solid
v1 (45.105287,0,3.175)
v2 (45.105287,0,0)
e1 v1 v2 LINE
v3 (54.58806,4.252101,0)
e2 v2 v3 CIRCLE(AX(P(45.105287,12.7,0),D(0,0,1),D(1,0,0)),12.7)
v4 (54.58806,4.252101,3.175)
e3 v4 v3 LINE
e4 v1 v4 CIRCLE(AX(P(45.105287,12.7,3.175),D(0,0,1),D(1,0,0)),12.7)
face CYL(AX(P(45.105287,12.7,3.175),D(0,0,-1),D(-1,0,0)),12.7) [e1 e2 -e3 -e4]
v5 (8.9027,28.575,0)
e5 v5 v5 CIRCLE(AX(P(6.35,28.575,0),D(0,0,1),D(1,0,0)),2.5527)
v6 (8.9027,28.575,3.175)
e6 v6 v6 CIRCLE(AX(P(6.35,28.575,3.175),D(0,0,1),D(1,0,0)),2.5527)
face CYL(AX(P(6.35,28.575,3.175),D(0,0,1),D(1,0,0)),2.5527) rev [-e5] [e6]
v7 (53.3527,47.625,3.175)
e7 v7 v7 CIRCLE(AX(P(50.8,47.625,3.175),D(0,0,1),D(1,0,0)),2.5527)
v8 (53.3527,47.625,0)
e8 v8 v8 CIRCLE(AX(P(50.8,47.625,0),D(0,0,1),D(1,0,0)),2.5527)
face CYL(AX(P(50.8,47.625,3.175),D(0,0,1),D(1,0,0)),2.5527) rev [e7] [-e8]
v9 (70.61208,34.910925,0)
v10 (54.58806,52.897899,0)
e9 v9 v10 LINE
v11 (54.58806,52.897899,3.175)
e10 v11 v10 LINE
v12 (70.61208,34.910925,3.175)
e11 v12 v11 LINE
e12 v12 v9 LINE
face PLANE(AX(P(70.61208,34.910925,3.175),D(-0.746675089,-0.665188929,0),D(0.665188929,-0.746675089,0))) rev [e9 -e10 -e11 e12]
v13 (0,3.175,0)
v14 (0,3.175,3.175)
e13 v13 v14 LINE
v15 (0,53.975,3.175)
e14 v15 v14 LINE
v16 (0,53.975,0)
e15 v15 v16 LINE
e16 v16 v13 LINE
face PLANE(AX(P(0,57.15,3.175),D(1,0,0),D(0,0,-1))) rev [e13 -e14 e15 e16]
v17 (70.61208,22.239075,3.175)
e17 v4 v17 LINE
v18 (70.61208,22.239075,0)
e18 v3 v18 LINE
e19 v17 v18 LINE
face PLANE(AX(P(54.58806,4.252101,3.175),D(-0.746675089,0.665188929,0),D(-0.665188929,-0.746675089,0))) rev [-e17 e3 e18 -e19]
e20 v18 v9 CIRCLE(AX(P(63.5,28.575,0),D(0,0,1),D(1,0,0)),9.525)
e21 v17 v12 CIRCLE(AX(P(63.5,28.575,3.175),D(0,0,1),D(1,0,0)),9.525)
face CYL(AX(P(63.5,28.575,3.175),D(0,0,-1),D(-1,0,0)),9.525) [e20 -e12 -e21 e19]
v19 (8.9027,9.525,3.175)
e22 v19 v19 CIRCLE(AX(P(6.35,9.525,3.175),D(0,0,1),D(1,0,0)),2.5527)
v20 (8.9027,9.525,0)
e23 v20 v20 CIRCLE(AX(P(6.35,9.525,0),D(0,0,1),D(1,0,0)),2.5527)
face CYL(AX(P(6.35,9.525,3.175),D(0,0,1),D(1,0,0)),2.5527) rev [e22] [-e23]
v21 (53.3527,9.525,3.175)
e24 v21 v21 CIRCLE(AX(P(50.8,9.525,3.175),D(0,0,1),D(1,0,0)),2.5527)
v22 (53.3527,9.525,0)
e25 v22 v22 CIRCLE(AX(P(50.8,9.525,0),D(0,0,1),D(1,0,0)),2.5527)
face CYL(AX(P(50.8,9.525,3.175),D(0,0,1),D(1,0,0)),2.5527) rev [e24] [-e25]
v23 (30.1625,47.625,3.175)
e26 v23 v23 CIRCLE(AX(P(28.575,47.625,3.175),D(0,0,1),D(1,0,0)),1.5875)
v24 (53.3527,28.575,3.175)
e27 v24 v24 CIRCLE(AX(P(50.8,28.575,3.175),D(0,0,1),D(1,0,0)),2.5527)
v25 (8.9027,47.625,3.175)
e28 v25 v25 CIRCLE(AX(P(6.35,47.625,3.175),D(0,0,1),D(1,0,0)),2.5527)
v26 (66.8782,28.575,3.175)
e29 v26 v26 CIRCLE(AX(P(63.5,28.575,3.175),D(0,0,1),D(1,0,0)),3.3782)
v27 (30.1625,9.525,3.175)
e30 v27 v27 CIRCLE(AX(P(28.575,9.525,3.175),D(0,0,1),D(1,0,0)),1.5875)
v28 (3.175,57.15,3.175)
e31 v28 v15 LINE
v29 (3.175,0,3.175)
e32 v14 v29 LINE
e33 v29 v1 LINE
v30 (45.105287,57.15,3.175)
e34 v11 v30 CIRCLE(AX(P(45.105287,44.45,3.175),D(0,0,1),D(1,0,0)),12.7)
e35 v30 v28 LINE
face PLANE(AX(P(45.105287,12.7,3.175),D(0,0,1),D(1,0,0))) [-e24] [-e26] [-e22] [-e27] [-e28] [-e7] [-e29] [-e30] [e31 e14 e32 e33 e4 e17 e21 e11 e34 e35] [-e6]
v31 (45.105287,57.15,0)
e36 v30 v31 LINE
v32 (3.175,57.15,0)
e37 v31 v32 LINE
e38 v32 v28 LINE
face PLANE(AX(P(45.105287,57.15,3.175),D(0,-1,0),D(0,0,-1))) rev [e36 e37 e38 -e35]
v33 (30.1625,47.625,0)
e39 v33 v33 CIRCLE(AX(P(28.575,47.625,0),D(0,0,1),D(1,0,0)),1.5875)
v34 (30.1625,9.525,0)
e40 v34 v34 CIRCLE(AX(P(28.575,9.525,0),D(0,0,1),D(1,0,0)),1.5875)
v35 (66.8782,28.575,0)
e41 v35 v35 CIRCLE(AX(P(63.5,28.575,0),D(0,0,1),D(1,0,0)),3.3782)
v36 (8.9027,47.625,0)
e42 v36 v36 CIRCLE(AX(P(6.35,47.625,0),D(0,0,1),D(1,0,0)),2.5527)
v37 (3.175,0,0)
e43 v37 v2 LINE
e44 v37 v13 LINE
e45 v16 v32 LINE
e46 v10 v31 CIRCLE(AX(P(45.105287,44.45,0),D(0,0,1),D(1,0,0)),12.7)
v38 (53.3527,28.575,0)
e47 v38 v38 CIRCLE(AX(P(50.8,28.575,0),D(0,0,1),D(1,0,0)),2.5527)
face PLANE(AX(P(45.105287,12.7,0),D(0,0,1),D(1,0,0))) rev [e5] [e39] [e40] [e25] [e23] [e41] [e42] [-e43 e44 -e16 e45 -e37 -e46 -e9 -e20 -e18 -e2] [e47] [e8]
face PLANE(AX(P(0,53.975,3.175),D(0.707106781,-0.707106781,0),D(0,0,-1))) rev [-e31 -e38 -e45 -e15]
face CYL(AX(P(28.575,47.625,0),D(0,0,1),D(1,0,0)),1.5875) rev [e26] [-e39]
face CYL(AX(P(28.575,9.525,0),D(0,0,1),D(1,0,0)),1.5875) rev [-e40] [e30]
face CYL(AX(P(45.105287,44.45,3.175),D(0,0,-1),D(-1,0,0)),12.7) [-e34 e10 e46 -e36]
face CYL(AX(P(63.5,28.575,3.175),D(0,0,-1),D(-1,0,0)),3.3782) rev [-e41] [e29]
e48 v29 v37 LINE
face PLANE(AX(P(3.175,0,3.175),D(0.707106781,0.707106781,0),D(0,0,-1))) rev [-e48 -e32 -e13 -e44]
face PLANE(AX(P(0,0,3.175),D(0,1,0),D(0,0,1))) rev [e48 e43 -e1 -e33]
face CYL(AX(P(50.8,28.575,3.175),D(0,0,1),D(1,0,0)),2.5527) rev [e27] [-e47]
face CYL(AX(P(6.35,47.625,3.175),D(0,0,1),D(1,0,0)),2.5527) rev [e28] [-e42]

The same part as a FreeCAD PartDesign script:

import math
import FreeCAD as App
import Part
import Sketcher
Q = App.Units.Quantity


def edges_at(feature, points):
    """Names of the edges that pass closest to the given points."""
    edges = feature.Shape.Edges
    near = lambda p: min(range(len(edges)), key=lambda i: edges[i].distToShape(Part.Vertex(*p))[0])
    return sorted({f"Edge{near(p) + 1}" for p in points})

doc = App.newDocument("Part")
params = doc.addObject("Spreadsheet::Sheet", "Params")
for row, (alias, value) in enumerate([
    ("sketch1_radius", "0.5 in"),
    ("sketch1_diameter", "0.266 in"),
    ("sketch1_radius2", "0.375 in"),
    ("sketch1_height", "2.25 in"),
    ("pad1_length", "0.125 in"),
    ("sketch2_diameter", "0.201 in"),
    ("hole_diameter", "0.201 in"),
    ("chamfer_size", "0.125 in"),
    ("sketch3_diameter", "0.125 in"),
], start=1):
    params.set(f"A{row}", alias)
    params.set(f"B{row}", "=" + value)
    params.setAlias(f"B{row}", alias)

body = doc.addObject("PartDesign::Body", "Body")

# Sketch on XY plane
sketch1 = body.newObject("Sketcher::SketchObject", "Sketch")
sketch1.AttachmentSupport = (doc.getObject("XY_Plane"), [""])
sketch1.MapMode = "FlatFace"
sketch1.addGeometry([
    Part.LineSegment(App.Vector(0, 0, 0), App.Vector(45.105287, 0, 0)),  # 0
    Part.ArcOfCircle(Part.Circle(App.Vector(45.105287, 12.7, 0), App.Vector(0, 0, 1), 12.7), math.radians(-90), math.radians(-41.696821)),  # 1
    Part.LineSegment(App.Vector(54.58806, 4.252101, 0), App.Vector(70.61208, 22.239075, 0)),  # 2
    Part.ArcOfCircle(Part.Circle(App.Vector(63.5, 28.575, 0), App.Vector(0, 0, 1), 9.525), math.radians(-41.696821), math.radians(41.696821)),  # 3
    Part.LineSegment(App.Vector(70.61208, 34.910925, 0), App.Vector(54.58806, 52.897899, 0)),  # 4
    Part.ArcOfCircle(Part.Circle(App.Vector(45.105287, 44.45, 0), App.Vector(0, 0, 1), 12.7), math.radians(41.696821), math.radians(90)),  # 5
    Part.LineSegment(App.Vector(45.105287, 57.15, 0), App.Vector(0, 57.15, 0)),  # 6
    Part.LineSegment(App.Vector(0, 57.15, 0), App.Vector(0, 0, 0)),  # 7
    Part.Circle(App.Vector(63.5, 28.575, 0), App.Vector(0, 0, 1), 3.3782),  # 8
], False)
sketch1.addConstraint([
    Sketcher.Constraint("Tangent", 0, 2, 1, 1),
    Sketcher.Constraint("Tangent", 1, 2, 2, 1),
    Sketcher.Constraint("Tangent", 2, 2, 3, 1),
    Sketcher.Constraint("Tangent", 3, 2, 4, 1),
    Sketcher.Constraint("Tangent", 4, 2, 5, 1),
    Sketcher.Constraint("Tangent", 5, 2, 6, 1),
    Sketcher.Constraint("Coincident", 6, 2, 7, 1),
    Sketcher.Constraint("Coincident", 7, 2, 0, 1),
    Sketcher.Constraint("Horizontal", 0),
    Sketcher.Constraint("Horizontal", 6),
    Sketcher.Constraint("Vertical", 7),
    Sketcher.Constraint("Coincident", 7, 2, -1, 1),
    Sketcher.Constraint("Coincident", 8, 3, 3, 3),
    Sketcher.Constraint("Equal", 1, 5),
    Sketcher.Constraint("Vertical", 1, 3, 5, 3),
    Sketcher.Constraint("Vertical", 2, 2, 3, 2),
    Sketcher.Constraint("Radius", 1, Q("0.5 in")),
    Sketcher.Constraint("Diameter", 8, Q("0.266 in")),
    Sketcher.Constraint("Radius", 3, Q("0.375 in")),
    Sketcher.Constraint("DistanceY", 7, 2, 7, 1, Q("2.25 in")),
    Sketcher.Constraint("DistanceX", -1, 1, 3, 3, Q("2.5 in")),
    Sketcher.Constraint("DistanceY", -1, 1, 1, 2, 4.252101),
])
sketch1.setExpression("Constraints[16]", "Params.sketch1_radius")
sketch1.setExpression("Constraints[17]", "Params.sketch1_diameter")
sketch1.setExpression("Constraints[18]", "Params.sketch1_radius2")
sketch1.setExpression("Constraints[19]", "Params.sketch1_height")
pad1 = body.newObject("PartDesign::Pad", "Pad")
pad1.Profile = sketch1
pad1.setExpression("Length", "Params.pad1_length")

# Sketch on XY plane
sketch2 = body.newObject("Sketcher::SketchObject", "Sketch001")
sketch2.AttachmentSupport = (doc.getObject("XY_Plane"), [""])
sketch2.MapMode = "FlatFace"
sketch2.AttachmentOffset = App.Placement(App.Vector(0, 0, 0.125 * 25.4), App.Rotation())
sketch2.addGeometry([
    Part.Circle(App.Vector(50.8, 28.575, 0), App.Vector(0, 0, 1), 2.5527),  # 0
    Part.Circle(App.Vector(6.35, 28.575, 0), App.Vector(0, 0, 1), 2.5527),  # 1
    Part.Circle(App.Vector(6.35, 47.625, 0), App.Vector(0, 0, 1), 2.5527),  # 2
    Part.Circle(App.Vector(50.8, 47.625, 0), App.Vector(0, 0, 1), 2.5527),  # 3
    Part.Circle(App.Vector(50.8, 9.525, 0), App.Vector(0, 0, 1), 2.5527),  # 4
    Part.Circle(App.Vector(6.35, 9.525, 0), App.Vector(0, 0, 1), 2.5527),  # 5
], False)
sketch2.addConstraint([
    Sketcher.Constraint("Equal", 0, 1),
    Sketcher.Constraint("Equal", 1, 2),
    Sketcher.Constraint("Equal", 2, 3),
    Sketcher.Constraint("Equal", 3, 4),
    Sketcher.Constraint("Equal", 4, 5),
    Sketcher.Constraint("Horizontal", 0, 3, 1, 3),
    Sketcher.Constraint("Horizontal", 2, 3, 3, 3),
    Sketcher.Constraint("Horizontal", 4, 3, 5, 3),
    Sketcher.Constraint("Vertical", 1, 3, 2, 3),
    Sketcher.Constraint("Vertical", 0, 3, 3, 3),
    Sketcher.Constraint("Vertical", 3, 3, 4, 3),
    Sketcher.Constraint("Vertical", 2, 3, 5, 3),
    Sketcher.Constraint("Diameter", 0, Q("0.201 in")),
    Sketcher.Constraint("DistanceX", -1, 1, 0, 3, Q("2 in")),
    Sketcher.Constraint("DistanceY", 4, 3, 3, 3, Q("1.5 in")),
    Sketcher.Constraint("DistanceX", -1, 1, 1, 3, Q("0.25 in")),
    Sketcher.Constraint("DistanceY", 1, 3, 2, 3, Q("0.75 in")),
    Sketcher.Constraint("DistanceY", -1, 1, 0, 3, Q("1.125 in")),
])
sketch2.setExpression("Constraints[12]", "Params.sketch2_diameter")
doc.recompute()
hole = body.newObject("PartDesign::Hole", "Hole")
hole.Profile = sketch2
hole.ThreadType = "None"
hole.setExpression("Diameter", "Params.hole_diameter")
hole.DepthType = "ThroughAll"
doc.recompute()

chamfer = body.newObject("PartDesign::Chamfer", "Chamfer")
chamfer.Base = (hole, edges_at(hole, [(0, 57.15, 1.587), (0, 0, 1.587)]))
chamfer.setExpression("Size", "Params.chamfer_size")

# Sketch on XY plane
sketch3 = body.newObject("Sketcher::SketchObject", "Sketch002")
sketch3.AttachmentSupport = (doc.getObject("XY_Plane"), [""])
sketch3.MapMode = "FlatFace"
sketch3.AttachmentOffset = App.Placement(App.Vector(0, 0, 0.125 * 25.4), App.Rotation())
sketch3.addGeometry([
    Part.Circle(App.Vector(28.575, 47.625, 0), App.Vector(0, 0, 1), 1.5875),
    Part.Circle(App.Vector(28.575, 9.525, 0), App.Vector(0, 0, 1), 1.5875),
], False)
sketch3.addConstraint([
    Sketcher.Constraint("Equal", 0, 1),
    Sketcher.Constraint("Vertical", 0, 3, 1, 3),
    Sketcher.Constraint("Diameter", 0, Q("0.125 in")),
    Sketcher.Constraint("DistanceY", 1, 3, 0, 3, Q("1.5 in")),
    Sketcher.Constraint("DistanceX", -1, 1, 0, 3, Q("1.125 in")),
    Sketcher.Constraint("DistanceY", -1, 1, 0, 3, Q("1.875 in")),
])
sketch3.setExpression("Constraints[2]", "Params.sketch3_diameter")
pocket1 = body.newObject("PartDesign::Pocket", "Pocket")
pocket1.Profile = sketch3
pocket1.Type = "ThroughAll"

doc.recompute()
